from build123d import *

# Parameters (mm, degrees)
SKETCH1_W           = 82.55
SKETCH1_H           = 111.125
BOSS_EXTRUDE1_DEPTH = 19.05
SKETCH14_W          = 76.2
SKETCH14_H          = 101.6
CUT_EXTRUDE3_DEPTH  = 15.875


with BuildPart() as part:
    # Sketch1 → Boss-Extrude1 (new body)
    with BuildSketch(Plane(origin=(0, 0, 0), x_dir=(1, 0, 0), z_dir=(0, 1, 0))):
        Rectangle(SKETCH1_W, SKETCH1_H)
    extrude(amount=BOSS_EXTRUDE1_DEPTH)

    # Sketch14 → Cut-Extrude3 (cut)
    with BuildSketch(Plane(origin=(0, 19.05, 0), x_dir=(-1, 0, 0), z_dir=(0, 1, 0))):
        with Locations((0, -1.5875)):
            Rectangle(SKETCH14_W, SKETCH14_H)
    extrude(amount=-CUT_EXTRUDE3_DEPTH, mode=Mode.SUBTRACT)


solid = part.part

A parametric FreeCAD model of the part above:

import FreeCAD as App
import Part
import Sketcher
from FreeCAD import Vector
Q = App.Units.Quantity


def add_polygon(sketch, points):
    """Adds a closed chain of lines whose ends are joined by coincident constraints."""
    first, n = sketch.GeometryCount, len(points)
    for a, b in zip(points, points[1:] + points[:1]):
        sketch.addGeometry(Part.LineSegment(App.Vector(*a, 0), App.Vector(*b, 0)), False)
    for i in range(n):
        sketch.addConstraint(Sketcher.Constraint("Coincident", first + i, 2, first + (i + 1) % n, 1))

doc = App.newDocument("Part")
body = doc.addObject("PartDesign::Body", "Body")

sketch1 = body.newObject("Sketcher::SketchObject", "Sketch")
sketch1.AttachmentSupport = (doc.getObject("XZ_Plane"), [""])
sketch1.MapMode = "FlatFace"
add_polygon(sketch1, [(-41.275, -55.5625), (-41.275, 55.5625), (41.275, 55.5625), (41.275, -55.5625)])
sketch1.addConstraint([
    Sketcher.Constraint("Vertical", 0),
    Sketcher.Constraint("Horizontal", 1),
    Sketcher.Constraint("Vertical", 2),
    Sketcher.Constraint("Horizontal", 3),
    Sketcher.Constraint("Symmetric", 0, 2, 2, 2, -1, 1),
    Sketcher.Constraint("DistanceX", 1, 1, 1, 2, Q("3.25 in")),
    Sketcher.Constraint("DistanceY", 0, 1, 0, 2, Q("4.375 in")),
])
pad1 = body.newObject("PartDesign::Pad", "Pad")
pad1.Profile = sketch1
pad1.Length = Q("0.75 in")
pad1.Reversed = True

sketch2 = body.newObject("Sketcher::SketchObject", "Sketch001")
sketch2.AttachmentSupport = (doc.getObject("XZ_Plane"), [""])
sketch2.MapMode = "FlatFace"
sketch2.AttachmentOffset = App.Placement(Vector(0, 0, -0.75 * 25.4), App.Rotation())
add_polygon(sketch2, [(38.1, 49.2125), (38.1, -52.3875), (-38.1, -52.3875), (-38.1, 49.2125)])
sketch2.addConstraint([
    Sketcher.Constraint("Vertical", 0),
    Sketcher.Constraint("Horizontal", 1),
    Sketcher.Constraint("Vertical", 2),
    Sketcher.Constraint("Horizontal", 3),
    Sketcher.Constraint("DistanceX", 1, 2, 1, 1, Q("3 in")),
    Sketcher.Constraint("DistanceY", 0, 2, 0, 1, Q("4 in")),
    Sketcher.Constraint("DistanceX", -1, 1, 0, 2, Q("1.5 in")),
    Sketcher.Constraint("DistanceY", 0, 2, -1, 1, Q("2.0625 in")),
])
pocket1 = body.newObject("PartDesign::Pocket", "Pocket")
pocket1.Profile = sketch2
pocket1.Length = Q("0.625 in")
pocket1.Reversed = True

doc.recompute()
